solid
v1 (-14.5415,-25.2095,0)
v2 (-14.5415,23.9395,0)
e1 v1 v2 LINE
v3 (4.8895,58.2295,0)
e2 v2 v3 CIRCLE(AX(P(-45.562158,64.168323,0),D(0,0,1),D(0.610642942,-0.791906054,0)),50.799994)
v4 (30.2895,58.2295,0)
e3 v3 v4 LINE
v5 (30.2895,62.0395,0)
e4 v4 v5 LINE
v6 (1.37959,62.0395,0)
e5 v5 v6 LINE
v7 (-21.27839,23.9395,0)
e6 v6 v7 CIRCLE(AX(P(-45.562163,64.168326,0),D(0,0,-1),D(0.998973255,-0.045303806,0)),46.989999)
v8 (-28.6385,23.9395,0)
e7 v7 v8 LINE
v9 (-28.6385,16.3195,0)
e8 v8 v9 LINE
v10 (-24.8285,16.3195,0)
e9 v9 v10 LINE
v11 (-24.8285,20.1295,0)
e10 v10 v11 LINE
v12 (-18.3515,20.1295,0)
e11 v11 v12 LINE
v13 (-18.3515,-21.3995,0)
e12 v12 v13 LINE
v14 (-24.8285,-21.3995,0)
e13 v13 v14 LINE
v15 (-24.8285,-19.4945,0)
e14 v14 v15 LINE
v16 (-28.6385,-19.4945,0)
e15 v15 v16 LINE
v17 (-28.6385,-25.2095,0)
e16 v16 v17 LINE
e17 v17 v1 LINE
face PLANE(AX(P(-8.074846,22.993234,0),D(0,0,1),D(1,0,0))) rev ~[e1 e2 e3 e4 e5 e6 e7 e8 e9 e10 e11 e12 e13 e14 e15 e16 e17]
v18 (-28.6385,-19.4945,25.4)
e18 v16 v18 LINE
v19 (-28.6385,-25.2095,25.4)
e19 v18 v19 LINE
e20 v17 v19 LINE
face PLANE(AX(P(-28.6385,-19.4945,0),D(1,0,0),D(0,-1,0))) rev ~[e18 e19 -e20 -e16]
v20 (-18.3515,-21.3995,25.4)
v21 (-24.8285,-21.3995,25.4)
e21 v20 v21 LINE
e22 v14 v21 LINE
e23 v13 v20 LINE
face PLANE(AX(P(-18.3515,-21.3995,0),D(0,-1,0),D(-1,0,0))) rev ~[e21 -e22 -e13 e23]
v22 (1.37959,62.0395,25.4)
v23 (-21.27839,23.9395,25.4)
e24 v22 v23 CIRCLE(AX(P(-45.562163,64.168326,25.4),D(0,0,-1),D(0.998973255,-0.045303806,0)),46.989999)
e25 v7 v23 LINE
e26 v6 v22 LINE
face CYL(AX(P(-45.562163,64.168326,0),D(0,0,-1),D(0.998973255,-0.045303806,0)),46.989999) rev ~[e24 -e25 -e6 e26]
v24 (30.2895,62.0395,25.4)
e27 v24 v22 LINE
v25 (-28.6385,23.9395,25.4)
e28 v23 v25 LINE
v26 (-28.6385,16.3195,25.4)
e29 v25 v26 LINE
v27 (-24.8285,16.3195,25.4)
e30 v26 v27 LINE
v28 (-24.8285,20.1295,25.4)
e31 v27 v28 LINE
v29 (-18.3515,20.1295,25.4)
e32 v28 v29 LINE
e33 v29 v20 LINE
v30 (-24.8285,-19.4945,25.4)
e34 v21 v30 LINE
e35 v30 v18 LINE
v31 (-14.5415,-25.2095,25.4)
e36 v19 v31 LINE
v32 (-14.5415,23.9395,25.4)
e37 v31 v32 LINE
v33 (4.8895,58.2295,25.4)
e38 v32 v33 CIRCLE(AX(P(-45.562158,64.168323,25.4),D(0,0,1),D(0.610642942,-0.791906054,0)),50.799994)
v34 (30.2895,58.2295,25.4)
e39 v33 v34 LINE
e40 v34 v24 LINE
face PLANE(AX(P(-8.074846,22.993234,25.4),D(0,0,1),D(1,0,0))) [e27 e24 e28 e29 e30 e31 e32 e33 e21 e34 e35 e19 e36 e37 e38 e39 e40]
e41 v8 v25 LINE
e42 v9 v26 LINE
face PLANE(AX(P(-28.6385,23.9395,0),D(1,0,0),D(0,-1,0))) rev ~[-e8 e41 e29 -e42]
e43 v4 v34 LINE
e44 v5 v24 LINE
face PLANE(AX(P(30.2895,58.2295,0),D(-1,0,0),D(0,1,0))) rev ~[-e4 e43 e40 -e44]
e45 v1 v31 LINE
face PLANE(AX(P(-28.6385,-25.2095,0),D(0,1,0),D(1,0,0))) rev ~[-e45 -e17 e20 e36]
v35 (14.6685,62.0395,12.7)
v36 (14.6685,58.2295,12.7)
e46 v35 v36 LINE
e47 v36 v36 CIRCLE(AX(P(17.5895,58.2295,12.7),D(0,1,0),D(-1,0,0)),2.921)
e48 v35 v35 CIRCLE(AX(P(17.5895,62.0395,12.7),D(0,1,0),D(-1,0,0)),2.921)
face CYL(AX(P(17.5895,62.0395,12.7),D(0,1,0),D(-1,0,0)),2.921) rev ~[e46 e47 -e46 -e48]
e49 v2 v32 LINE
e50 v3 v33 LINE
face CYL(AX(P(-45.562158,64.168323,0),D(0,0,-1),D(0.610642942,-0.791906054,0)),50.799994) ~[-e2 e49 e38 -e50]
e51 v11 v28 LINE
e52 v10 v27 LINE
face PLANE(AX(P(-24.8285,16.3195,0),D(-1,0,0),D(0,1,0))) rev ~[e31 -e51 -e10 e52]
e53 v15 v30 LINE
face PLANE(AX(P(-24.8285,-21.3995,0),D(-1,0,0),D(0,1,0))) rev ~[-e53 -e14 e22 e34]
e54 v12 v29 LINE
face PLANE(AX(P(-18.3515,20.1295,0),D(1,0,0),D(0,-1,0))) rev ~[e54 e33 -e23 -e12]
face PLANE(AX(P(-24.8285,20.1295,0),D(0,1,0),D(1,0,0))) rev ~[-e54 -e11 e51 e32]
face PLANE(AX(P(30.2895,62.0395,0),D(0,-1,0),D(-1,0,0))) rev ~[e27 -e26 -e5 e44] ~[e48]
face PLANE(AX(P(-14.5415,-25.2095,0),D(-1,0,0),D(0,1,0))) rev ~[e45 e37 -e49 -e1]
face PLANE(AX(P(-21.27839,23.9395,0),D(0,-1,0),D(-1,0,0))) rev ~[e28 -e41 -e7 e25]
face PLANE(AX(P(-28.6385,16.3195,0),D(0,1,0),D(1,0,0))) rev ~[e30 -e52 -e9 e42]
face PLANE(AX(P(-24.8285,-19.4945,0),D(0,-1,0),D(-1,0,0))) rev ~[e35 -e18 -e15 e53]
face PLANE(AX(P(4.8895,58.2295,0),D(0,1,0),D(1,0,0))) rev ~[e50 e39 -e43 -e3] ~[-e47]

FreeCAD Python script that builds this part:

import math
import FreeCAD as App
import Part
import Sketcher
Q = App.Units.Quantity

doc = App.newDocument("Part")
params = doc.addObject("Spreadsheet::Sheet", "Params")
for row, (alias, value) in enumerate([
    ("sketch1_width", "1 in"),
    ("sketch1_radius", "1.85 in"),
    ("sketch1_height", "0.3 in"),
    ("sketch1_width2", "0.15 in"),
    ("sketch1_width3", "0.255 in"),
    ("pad1_length", "1 in"),
    ("sketch2_diameter", "0.23 in"),
], start=1):
    params.set(f"A{row}", alias)
    params.set(f"B{row}", "=" + value)
    params.setAlias(f"B{row}", alias)

body = doc.addObject("PartDesign::Body", "Body")

# Sketch on XY plane
sketch1 = body.newObject("Sketcher::SketchObject", "Sketch")
sketch1.AttachmentSupport = (doc.getObject("XY_Plane"), [""])
sketch1.MapMode = "FlatFace"
sketch1.addGeometry([
    Part.LineSegment(App.Vector(-24.8285, 20.1295, 0), App.Vector(-18.3515, 20.1295, 0)),  # 0
    Part.LineSegment(App.Vector(-18.3515, 20.1295, 0), App.Vector(-18.3515, -21.3995, 0)),  # 1
    Part.LineSegment(App.Vector(-18.3515, -21.3995, 0), App.Vector(-24.8285, -21.3995, 0)),  # 2
    Part.LineSegment(App.Vector(-24.8285, -21.3995, 0), App.Vector(-24.8285, -19.4945, 0)),  # 3
    Part.LineSegment(App.Vector(-24.8285, -19.4945, 0), App.Vector(-28.6385, -19.4945, 0)),  # 4
    Part.LineSegment(App.Vector(-28.6385, -19.4945, 0), App.Vector(-28.6385, -25.2095, 0)),  # 5
    Part.LineSegment(App.Vector(-28.6385, -25.2095, 0), App.Vector(-14.5415, -25.2095, 0)),  # 6
    Part.LineSegment(App.Vector(-14.5415, -25.2095, 0), App.Vector(-14.5415, 23.9395, 0)),  # 7
    Part.ArcOfCircle(Part.Circle(App.Vector(-45.562158, 64.168323, 0), App.Vector(0, 0, 1), 50.799994), math.radians(-52.363994), math.radians(-6.713571)),  # 8
    Part.LineSegment(App.Vector(4.8895, 58.2295, 0), App.Vector(30.2895, 58.2295, 0)),  # 9
    Part.LineSegment(App.Vector(30.2895, 58.2295, 0), App.Vector(30.2895, 62.0395, 0)),  # 10
    Part.LineSegment(App.Vector(30.2895, 62.0395, 0), App.Vector(1.37959, 62.0395, 0)),  # 11
    Part.ArcOfCircle(Part.Circle(App.Vector(-45.562163, 64.168326, 0), App.Vector(0, 0, 1), 46.989999), math.radians(-58.883093), math.radians(-2.596606)),  # 12
    Part.LineSegment(App.Vector(-21.27839, 23.9395, 0), App.Vector(-28.6385, 23.9395, 0)),  # 13
    Part.LineSegment(App.Vector(-28.6385, 23.9395, 0), App.Vector(-28.6385, 16.3195, 0)),  # 14
    Part.LineSegment(App.Vector(-28.6385, 16.3195, 0), App.Vector(-24.8285, 16.3195, 0)),  # 15
    Part.LineSegment(App.Vector(-24.8285, 16.3195, 0), App.Vector(-24.8285, 20.1295, 0)),  # 16
], False)
sketch1.addConstraint([
    Sketcher.Constraint("Coincident", 0, 2, 1, 1),
    Sketcher.Constraint("Coincident", 1, 2, 2, 1),
    Sketcher.Constraint("Coincident", 2, 2, 3, 1),
    Sketcher.Constraint("Coincident", 3, 2, 4, 1),
    Sketcher.Constraint("Coincident", 4, 2, 5, 1),
    Sketcher.Constraint("Coincident", 5, 2, 6, 1),
    Sketcher.Constraint("Coincident", 6, 2, 7, 1),
    Sketcher.Constraint("Coincident", 7, 2, 8, 1),
    Sketcher.Constraint("Coincident", 8, 2, 9, 1),
    Sketcher.Constraint("Coincident", 9, 2, 10, 1),
    Sketcher.Constraint("Coincident", 10, 2, 11, 1),
    Sketcher.Constraint("Coincident", 11, 2, 12, 2),
    Sketcher.Constraint("Coincident", 12, 1, 13, 1),
    Sketcher.Constraint("Coincident", 13, 2, 14, 1),
    Sketcher.Constraint("Coincident", 14, 2, 15, 1),
    Sketcher.Constraint("Coincident", 15, 2, 16, 1),
    Sketcher.Constraint("Coincident", 16, 2, 0, 1),
    Sketcher.Constraint("Horizontal", 0),
    Sketcher.Constraint("Vertical", 1),
    Sketcher.Constraint("Horizontal", 2),
    Sketcher.Constraint("Vertical", 3),
    Sketcher.Constraint("Horizontal", 4),
    Sketcher.Constraint("Vertical", 5),
    Sketcher.Constraint("Horizontal", 6),
    Sketcher.Constraint("Vertical", 7),
    Sketcher.Constraint("Horizontal", 9),
    Sketcher.Constraint("Vertical", 10),
    Sketcher.Constraint("Horizontal", 11),
    Sketcher.Constraint("Horizontal", 13),
    Sketcher.Constraint("Vertical", 14),
    Sketcher.Constraint("Horizontal", 15),
    Sketcher.Constraint("Vertical", 16),
    Sketcher.Constraint("Coincident", 12, 3, 8, 3),
    Sketcher.Constraint("Horizontal", 7, 2, 12, 1),
    Sketcher.Constraint("Vertical", 5, 2, 13, 2),
    Sketcher.Constraint("Vertical", 3, 2, 15, 2),
    Sketcher.Constraint("Equal", 15, 10),
    Sketcher.Constraint("Equal", 10, 16),
    Sketcher.Constraint("DistanceX", 9, 1, 9, 2, Q("1 in")),
    Sketcher.Constraint("Radius", 12, Q("1.85 in")),
    Sketcher.Constraint("DistanceY", 14, 2, 14, 1, Q("0.3 in")),
    Sketcher.Constraint("DistanceX", 4, 2, 4, 1, Q("0.15 in")),
    Sketcher.Constraint("DistanceY", 0, 2, 8, 2, Q("1.5 in")),
    Sketcher.Constraint("DistanceX", 0, 1, 0, 2, Q("0.255 in")),
    Sketcher.Constraint("DistanceX", 6, 1, 6, 2, Q("0.555 in")),
    Sketcher.Constraint("DistanceY", 1, 2, 1, 1, Q("1.635 in")),
    Sketcher.Constraint("DistanceY", 3, 1, 3, 2, Q("0.075 in")),
    Sketcher.Constraint("DistanceY", 5, 2, 5, 1, Q("0.225 in")),
    Sketcher.Constraint("DistanceX", 7, 2, 8, 2, Q("0.765 in")),
    Sketcher.Constraint("DistanceX", 0, 2, -1, 1, Q("0.7225 in")),
    Sketcher.Constraint("DistanceY", -1, 1, 0, 2, Q("0.7925 in")),
    Sketcher.Constraint("Radius", 8, Q("50.799994 mm")),
])
sketch1.setExpression("Constraints[38]", "Params.sketch1_width")
sketch1.setExpression("Constraints[39]", "Params.sketch1_radius")
sketch1.setExpression("Constraints[40]", "Params.sketch1_height")
sketch1.setExpression("Constraints[41]", "Params.sketch1_width2")
sketch1.setExpression("Constraints[43]", "Params.sketch1_width3")
pad1 = body.newObject("PartDesign::Pad", "Pad")
pad1.Profile = sketch1
pad1.setExpression("Length", "Params.pad1_length")

# Sketch on XZ plane
sketch2 = body.newObject("Sketcher::SketchObject", "Sketch001")
sketch2.AttachmentSupport = (doc.getObject("XZ_Plane"), [""])
sketch2.MapMode = "FlatFace"
sketch2.AttachmentOffset = App.Placement(App.Vector(0, 0, -2.4425 * 25.4), App.Rotation())
sketch2.addGeometry(Part.Circle(App.Vector(17.5895, 12.7, 0), App.Vector(0, 0, 1), 2.921), False)
sketch2.addConstraint([
    Sketcher.Constraint("Diameter", 0, Q("0.23 in")),
    Sketcher.Constraint("DistanceY", -1, 1, 0, 3, Q("0.5 in")),
    Sketcher.Constraint("DistanceX", -1, 1, 0, 3, Q("0.6925 in")),
])
sketch2.setExpression("Constraints[0]", "Params.sketch2_diameter")
pocket1 = body.newObject("PartDesign::Pocket", "Pocket")
pocket1.Profile = sketch2
pocket1.Type = "ThroughAll"
pocket1.Reversed = True

doc.recompute()
